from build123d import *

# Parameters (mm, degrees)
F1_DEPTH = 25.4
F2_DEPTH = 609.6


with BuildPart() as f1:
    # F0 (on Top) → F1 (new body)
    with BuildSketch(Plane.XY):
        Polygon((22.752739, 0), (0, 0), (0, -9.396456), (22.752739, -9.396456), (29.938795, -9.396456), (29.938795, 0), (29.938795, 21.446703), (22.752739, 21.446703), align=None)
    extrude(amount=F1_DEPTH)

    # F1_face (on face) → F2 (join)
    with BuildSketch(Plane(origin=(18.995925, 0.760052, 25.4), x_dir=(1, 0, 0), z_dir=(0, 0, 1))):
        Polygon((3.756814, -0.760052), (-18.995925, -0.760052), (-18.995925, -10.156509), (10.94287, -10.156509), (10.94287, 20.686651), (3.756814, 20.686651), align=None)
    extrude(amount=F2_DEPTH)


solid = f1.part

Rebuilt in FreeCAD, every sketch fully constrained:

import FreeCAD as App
import Part
import Sketcher
from FreeCAD import Vector
Q = App.Units.Quantity


def add_polygon(sketch, points):
    """Adds a closed chain of lines whose ends are joined by coincident constraints."""
    first, n = sketch.GeometryCount, len(points)
    for a, b in zip(points, points[1:] + points[:1]):
        sketch.addGeometry(Part.LineSegment(App.Vector(*a, 0), App.Vector(*b, 0)), False)
    for i in range(n):
        sketch.addConstraint(Sketcher.Constraint("Coincident", first + i, 2, first + (i + 1) % n, 1))

doc = App.newDocument("Part")
body = doc.addObject("PartDesign::Body", "Body")

sketch1 = body.newObject("Sketcher::SketchObject", "Sketch")
sketch1.AttachmentSupport = (doc.getObject("XY_Plane"), [""])
sketch1.MapMode = "FlatFace"
add_polygon(sketch1, [(22.752739, 0), (0, 0), (0, -9.396456), (29.938795, -9.396456), (29.938795, 21.446703), (22.752739, 21.446703)])
sketch1.addConstraint([
    Sketcher.Constraint("Horizontal", 0),
    Sketcher.Constraint("Vertical", 1),
    Sketcher.Constraint("Horizontal", 2),
    Sketcher.Constraint("Vertical", 3),
    Sketcher.Constraint("Horizontal", 4),
    Sketcher.Constraint("Vertical", 5),
    Sketcher.Constraint("Coincident", 0, 2, -1, 1),
    Sketcher.Constraint("DistanceX", 0, 2, 0, 1, 22.752739),
    Sketcher.Constraint("DistanceY", 3, 1, 3, 2, 30.843159),
    Sketcher.Constraint("DistanceX", 2, 1, 2, 2, 29.938795),
    Sketcher.Constraint("DistanceY", 1, 2, 1, 1, 9.396456),
])
pad1 = body.newObject("PartDesign::Pad", "Pad")
pad1.Profile = sketch1
pad1.Length = Q("1 in")

sketch2 = body.newObject("Sketcher::SketchObject", "Sketch001")
sketch2.AttachmentSupport = (doc.getObject("XY_Plane"), [""])
sketch2.MapMode = "FlatFace"
sketch2.AttachmentOffset = App.Placement(Vector(0, 0, 1 * 25.4), App.Rotation())
add_polygon(sketch2, [(22.752739, 0), (0, 0), (0, -9.396457), (29.938795, -9.396457), (29.938795, 21.446703), (22.752739, 21.446703)])
sketch2.addConstraint([
    Sketcher.Constraint("Horizontal", 0),
    Sketcher.Constraint("Vertical", 1),
    Sketcher.Constraint("Horizontal", 2),
    Sketcher.Constraint("Vertical", 3),
    Sketcher.Constraint("Horizontal", 4),
    Sketcher.Constraint("Vertical", 5),
    Sketcher.Constraint("Coincident", 0, 2, -1, 1),
    Sketcher.Constraint("DistanceX", 0, 2, 0, 1, 22.752739),
    Sketcher.Constraint("DistanceY", 3, 1, 3, 2, 30.84316),
    Sketcher.Constraint("DistanceX", 2, 1, 2, 2, 29.938795),
    Sketcher.Constraint("DistanceY", 1, 2, 1, 1, 9.396457),
])
pad2 = body.newObject("PartDesign::Pad", "Pad001")
pad2.Profile = sketch2
pad2.Length = Q("24 in")

doc.recompute()
